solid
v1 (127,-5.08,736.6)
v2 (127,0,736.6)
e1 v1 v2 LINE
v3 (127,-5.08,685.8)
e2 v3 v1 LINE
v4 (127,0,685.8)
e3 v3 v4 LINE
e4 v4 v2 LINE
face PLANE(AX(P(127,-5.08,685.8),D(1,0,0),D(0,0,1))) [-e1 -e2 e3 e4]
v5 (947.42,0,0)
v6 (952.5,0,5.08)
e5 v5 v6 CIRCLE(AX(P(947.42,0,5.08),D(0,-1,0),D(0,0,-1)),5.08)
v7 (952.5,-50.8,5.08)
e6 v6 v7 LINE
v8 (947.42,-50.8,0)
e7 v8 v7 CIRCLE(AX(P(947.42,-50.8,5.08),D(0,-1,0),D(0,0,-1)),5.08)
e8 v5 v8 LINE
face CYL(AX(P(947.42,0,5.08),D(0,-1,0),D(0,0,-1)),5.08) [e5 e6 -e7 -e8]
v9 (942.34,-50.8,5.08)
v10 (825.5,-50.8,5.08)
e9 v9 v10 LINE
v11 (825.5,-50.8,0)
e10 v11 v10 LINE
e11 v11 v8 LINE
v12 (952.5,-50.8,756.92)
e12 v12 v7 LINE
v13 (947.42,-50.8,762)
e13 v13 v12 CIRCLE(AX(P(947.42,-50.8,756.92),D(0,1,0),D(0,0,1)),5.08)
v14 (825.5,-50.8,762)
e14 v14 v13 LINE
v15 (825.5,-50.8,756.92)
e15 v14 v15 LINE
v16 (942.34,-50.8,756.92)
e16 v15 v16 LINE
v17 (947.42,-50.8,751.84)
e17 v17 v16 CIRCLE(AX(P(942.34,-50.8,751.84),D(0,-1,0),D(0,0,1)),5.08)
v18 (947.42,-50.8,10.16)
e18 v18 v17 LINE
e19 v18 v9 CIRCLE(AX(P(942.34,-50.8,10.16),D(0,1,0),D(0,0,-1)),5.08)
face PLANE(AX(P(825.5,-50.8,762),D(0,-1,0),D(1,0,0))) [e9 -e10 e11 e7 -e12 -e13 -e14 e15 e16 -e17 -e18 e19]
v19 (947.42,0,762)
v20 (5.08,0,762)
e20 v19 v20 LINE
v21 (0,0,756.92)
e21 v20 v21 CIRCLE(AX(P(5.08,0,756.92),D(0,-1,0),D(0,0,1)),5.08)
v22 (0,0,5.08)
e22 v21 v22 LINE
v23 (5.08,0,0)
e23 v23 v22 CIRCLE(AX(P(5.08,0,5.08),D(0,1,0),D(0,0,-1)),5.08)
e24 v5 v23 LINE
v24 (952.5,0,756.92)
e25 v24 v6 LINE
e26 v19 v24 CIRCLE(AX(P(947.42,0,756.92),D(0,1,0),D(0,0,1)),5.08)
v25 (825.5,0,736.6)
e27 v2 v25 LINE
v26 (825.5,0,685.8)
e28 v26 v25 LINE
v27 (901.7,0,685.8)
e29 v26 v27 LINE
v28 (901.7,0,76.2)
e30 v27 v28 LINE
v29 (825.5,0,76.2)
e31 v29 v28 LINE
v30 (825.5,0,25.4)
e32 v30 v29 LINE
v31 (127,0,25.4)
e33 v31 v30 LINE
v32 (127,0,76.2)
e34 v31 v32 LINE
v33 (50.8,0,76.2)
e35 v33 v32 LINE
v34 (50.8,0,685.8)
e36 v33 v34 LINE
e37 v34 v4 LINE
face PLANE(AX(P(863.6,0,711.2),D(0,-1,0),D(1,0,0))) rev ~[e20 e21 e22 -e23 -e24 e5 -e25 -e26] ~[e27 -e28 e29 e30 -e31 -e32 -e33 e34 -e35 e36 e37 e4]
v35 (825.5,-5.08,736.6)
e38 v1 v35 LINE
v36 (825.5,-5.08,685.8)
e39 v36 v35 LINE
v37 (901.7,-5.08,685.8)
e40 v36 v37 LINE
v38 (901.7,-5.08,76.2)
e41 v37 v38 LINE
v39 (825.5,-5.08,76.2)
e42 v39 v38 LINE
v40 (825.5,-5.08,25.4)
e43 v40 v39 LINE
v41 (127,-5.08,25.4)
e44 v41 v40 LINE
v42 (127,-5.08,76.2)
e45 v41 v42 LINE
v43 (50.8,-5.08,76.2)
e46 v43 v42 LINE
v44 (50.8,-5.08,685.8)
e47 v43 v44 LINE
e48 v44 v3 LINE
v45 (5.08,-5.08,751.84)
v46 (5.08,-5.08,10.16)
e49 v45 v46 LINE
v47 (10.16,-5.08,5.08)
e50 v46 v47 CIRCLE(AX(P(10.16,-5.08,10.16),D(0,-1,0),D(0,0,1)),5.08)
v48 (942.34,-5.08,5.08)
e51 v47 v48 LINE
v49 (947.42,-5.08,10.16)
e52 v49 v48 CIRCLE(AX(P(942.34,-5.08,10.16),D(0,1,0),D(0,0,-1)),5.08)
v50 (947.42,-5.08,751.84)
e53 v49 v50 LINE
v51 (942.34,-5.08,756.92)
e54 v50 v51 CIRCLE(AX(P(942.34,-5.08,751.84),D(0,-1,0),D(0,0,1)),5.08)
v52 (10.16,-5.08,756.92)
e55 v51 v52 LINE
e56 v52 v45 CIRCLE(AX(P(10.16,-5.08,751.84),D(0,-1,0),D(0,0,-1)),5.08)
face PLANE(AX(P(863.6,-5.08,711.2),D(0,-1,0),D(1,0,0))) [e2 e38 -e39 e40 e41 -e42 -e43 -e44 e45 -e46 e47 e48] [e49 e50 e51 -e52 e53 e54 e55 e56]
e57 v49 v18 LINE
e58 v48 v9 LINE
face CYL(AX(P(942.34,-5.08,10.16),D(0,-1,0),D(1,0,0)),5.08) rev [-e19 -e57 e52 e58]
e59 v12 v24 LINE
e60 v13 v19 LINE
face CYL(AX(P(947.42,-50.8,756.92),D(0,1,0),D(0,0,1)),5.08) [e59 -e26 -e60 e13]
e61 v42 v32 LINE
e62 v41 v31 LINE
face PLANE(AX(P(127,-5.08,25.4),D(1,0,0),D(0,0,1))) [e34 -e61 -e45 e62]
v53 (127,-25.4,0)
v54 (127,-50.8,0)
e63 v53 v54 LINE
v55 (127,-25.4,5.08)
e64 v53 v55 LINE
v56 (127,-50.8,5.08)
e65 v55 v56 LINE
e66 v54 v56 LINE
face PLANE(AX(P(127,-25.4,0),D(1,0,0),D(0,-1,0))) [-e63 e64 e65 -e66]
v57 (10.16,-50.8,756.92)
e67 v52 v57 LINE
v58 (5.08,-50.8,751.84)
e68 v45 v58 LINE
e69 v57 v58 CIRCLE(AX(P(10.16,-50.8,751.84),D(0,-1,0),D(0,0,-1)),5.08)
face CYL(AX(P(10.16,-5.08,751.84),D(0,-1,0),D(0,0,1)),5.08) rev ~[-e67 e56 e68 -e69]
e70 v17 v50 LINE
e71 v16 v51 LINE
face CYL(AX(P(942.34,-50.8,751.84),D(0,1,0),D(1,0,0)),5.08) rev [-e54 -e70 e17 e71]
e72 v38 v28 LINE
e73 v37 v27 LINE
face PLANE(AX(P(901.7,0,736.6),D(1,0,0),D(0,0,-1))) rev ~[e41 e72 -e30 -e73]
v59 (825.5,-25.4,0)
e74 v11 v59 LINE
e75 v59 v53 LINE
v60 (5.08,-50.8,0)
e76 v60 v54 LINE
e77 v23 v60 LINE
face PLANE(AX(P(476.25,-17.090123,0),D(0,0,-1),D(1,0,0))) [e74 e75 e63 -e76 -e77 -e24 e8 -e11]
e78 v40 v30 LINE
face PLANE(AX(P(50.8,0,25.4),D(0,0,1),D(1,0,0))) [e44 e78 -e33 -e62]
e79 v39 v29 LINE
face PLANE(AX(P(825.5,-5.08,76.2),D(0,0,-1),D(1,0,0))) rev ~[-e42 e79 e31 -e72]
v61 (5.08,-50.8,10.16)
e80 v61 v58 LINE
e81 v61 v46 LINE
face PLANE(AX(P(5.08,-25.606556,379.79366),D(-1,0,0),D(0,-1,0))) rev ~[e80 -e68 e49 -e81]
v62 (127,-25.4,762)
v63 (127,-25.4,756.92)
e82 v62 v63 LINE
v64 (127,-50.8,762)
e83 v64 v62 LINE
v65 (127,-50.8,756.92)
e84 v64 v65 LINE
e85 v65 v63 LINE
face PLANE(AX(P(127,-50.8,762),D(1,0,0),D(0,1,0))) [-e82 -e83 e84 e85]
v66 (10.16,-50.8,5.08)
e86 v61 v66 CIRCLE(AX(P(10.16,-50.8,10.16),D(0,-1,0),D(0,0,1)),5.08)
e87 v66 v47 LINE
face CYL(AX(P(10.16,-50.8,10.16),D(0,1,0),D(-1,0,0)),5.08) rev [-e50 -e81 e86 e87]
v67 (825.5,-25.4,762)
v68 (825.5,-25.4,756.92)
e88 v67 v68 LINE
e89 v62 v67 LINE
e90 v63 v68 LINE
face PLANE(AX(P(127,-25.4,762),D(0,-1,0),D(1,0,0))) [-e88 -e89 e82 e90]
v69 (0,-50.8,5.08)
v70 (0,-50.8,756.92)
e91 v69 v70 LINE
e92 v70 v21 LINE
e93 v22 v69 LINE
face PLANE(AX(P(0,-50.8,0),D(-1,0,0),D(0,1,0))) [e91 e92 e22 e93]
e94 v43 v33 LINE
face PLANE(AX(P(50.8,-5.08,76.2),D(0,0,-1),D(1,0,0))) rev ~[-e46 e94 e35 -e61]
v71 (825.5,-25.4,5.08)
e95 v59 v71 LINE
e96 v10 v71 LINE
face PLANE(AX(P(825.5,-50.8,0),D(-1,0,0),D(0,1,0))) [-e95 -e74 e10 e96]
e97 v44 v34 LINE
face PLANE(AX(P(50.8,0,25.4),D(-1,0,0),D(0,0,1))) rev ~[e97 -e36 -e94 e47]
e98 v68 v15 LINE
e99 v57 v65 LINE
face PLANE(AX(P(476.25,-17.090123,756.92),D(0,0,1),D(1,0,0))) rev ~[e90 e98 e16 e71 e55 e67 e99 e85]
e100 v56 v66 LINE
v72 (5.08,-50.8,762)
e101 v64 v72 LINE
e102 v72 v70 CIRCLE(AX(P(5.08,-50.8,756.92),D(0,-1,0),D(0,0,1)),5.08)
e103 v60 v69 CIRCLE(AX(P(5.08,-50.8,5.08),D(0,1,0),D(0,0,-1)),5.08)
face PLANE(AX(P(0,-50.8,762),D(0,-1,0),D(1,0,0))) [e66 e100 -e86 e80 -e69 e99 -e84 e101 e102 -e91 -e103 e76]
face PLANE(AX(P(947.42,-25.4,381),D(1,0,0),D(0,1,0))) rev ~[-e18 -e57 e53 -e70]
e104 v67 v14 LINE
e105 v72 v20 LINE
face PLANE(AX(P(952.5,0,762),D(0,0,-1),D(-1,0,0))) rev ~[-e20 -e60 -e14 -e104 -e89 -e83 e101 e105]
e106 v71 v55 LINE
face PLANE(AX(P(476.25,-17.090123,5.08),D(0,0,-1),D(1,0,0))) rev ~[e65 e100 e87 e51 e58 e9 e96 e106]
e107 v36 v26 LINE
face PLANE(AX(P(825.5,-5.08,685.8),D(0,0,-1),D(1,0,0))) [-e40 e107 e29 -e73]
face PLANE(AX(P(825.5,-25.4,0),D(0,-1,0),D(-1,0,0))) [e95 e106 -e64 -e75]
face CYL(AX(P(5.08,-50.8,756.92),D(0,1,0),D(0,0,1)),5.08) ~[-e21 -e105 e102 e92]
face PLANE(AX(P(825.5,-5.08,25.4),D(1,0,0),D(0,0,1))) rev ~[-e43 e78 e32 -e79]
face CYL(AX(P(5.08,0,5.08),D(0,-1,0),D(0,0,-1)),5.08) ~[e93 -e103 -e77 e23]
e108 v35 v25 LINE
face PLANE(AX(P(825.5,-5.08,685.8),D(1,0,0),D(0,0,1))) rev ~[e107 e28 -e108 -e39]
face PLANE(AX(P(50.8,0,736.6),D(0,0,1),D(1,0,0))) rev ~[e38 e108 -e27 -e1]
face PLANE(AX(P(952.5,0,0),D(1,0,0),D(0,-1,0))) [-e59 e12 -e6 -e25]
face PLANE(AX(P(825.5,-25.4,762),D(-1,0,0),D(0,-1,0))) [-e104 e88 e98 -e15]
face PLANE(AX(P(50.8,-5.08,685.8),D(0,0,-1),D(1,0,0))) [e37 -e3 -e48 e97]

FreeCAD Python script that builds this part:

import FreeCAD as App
import Part
import Sketcher
from FreeCAD import Vector
Q = App.Units.Quantity


def edges_at(feature, points):
    """Names of the edges that pass closest to the given points."""
    edges = feature.Shape.Edges
    near = lambda p: min(range(len(edges)), key=lambda i: edges[i].distToShape(Part.Vertex(*p))[0])
    return sorted({f"Edge{near(p) + 1}" for p in points})

doc = App.newDocument("Part")
body = doc.addObject("PartDesign::Body", "Body")

# Sketch on XZ plane
sketch1 = doc.addObject("Sketcher::SketchObject", "Sketch")
body.addObject(sketch1)
sketch1.AttachmentSupport = (doc.XZ_Plane, [""])
sketch1.MapMode = "FlatFace"
sketch1.addGeometry(Part.LineSegment(Vector(0, 0, 0), Vector(952, 0, 0)), False)
sketch1.addGeometry(Part.LineSegment(Vector(952, 0, 0), Vector(952, 762, 0)), False)
sketch1.addGeometry(Part.LineSegment(Vector(952, 762, 0), Vector(0, 762, 0)), False)
sketch1.addGeometry(Part.LineSegment(Vector(0, 762, 0), Vector(0, 0, 0)), False)
sketch1.addGeometry(Part.LineSegment(Vector(902, 25, 0), Vector(51, 25, 0)), False)
sketch1.addGeometry(Part.LineSegment(Vector(51, 25, 0), Vector(51, 737, 0)), False)
sketch1.addGeometry(Part.LineSegment(Vector(51, 737, 0), Vector(902, 737, 0)), False)
sketch1.addGeometry(Part.LineSegment(Vector(902, 737, 0), Vector(902, 25, 0)), False)
sketch1.addConstraint(Sketcher.Constraint("Coincident", 0, 2, 1, 1))
sketch1.addConstraint(Sketcher.Constraint("Coincident", 1, 2, 2, 1))
sketch1.addConstraint(Sketcher.Constraint("Coincident", 2, 2, 3, 1))
sketch1.addConstraint(Sketcher.Constraint("Coincident", 3, 2, 0, 1))
sketch1.addConstraint(Sketcher.Constraint("Coincident", 4, 2, 5, 1))
sketch1.addConstraint(Sketcher.Constraint("Coincident", 5, 2, 6, 1))
sketch1.addConstraint(Sketcher.Constraint("Coincident", 6, 2, 7, 1))
sketch1.addConstraint(Sketcher.Constraint("Coincident", 7, 2, 4, 1))
sketch1.addConstraint(Sketcher.Constraint("Horizontal", 0))
sketch1.addConstraint(Sketcher.Constraint("Vertical", 1))
sketch1.addConstraint(Sketcher.Constraint("Horizontal", 2))
sketch1.addConstraint(Sketcher.Constraint("Vertical", 3))
sketch1.addConstraint(Sketcher.Constraint("Horizontal", 4))
sketch1.addConstraint(Sketcher.Constraint("Vertical", 5))
sketch1.addConstraint(Sketcher.Constraint("Horizontal", 6))
sketch1.addConstraint(Sketcher.Constraint("Vertical", 7))
sketch1.addConstraint(Sketcher.Constraint("Coincident", 3, 2, -1, 1))
sketch1.addConstraint(Sketcher.Constraint("DistanceY", 1, 1, 1, 2, Q("30 in")))
sketch1.addConstraint(Sketcher.Constraint("DistanceY", 5, 1, 5, 2, Q("28 in")))
sketch1.addConstraint(Sketcher.Constraint("DistanceX", 0, 1, 0, 2, Q("37.5 in")))
sketch1.addConstraint(Sketcher.Constraint("DistanceX", 4, 2, 4, 1, Q("33.5 in")))
sketch1.addConstraint(Sketcher.Constraint("DistanceX", -1, 1, 4, 2, Q("2 in")))
sketch1.addConstraint(Sketcher.Constraint("DistanceY", -1, 1, 4, 2, Q("1 in")))
pad1 = doc.addObject("PartDesign::Pad", "Pad")
body.addObject(pad1)
pad1.Profile = sketch1
pad1.Length = Q("0.2 in")

# Sketch on XY plane
sketch2 = doc.addObject("Sketcher::SketchObject", "Sketch001")
body.addObject(sketch2)
sketch2.AttachmentSupport = (doc.XY_Plane, [""])
sketch2.MapMode = "FlatFace"
sketch2.addGeometry(Part.LineSegment(Vector(0, -51, 0), Vector(0, 0, 0)), False)
sketch2.addGeometry(Part.LineSegment(Vector(0, 0, 0), Vector(952, 0, 0)), False)
sketch2.addGeometry(Part.LineSegment(Vector(952, 0, 0), Vector(952, -51, 0)), False)
sketch2.addGeometry(Part.LineSegment(Vector(952, -51, 0), Vector(826, -51, 0)), False)
sketch2.addGeometry(Part.LineSegment(Vector(826, -51, 0), Vector(826, -25, 0)), False)
sketch2.addGeometry(Part.LineSegment(Vector(826, -25, 0), Vector(127, -25, 0)), False)
sketch2.addGeometry(Part.LineSegment(Vector(127, -25, 0), Vector(127, -51, 0)), False)
sketch2.addGeometry(Part.LineSegment(Vector(127, -51, 0), Vector(0, -51, 0)), False)
sketch2.addConstraint(Sketcher.Constraint("Coincident", 0, 2, 1, 1))
sketch2.addConstraint(Sketcher.Constraint("Coincident", 1, 2, 2, 1))
sketch2.addConstraint(Sketcher.Constraint("Coincident", 2, 2, 3, 1))
sketch2.addConstraint(Sketcher.Constraint("Coincident", 3, 2, 4, 1))
sketch2.addConstraint(Sketcher.Constraint("Coincident", 4, 2, 5, 1))
sketch2.addConstraint(Sketcher.Constraint("Coincident", 5, 2, 6, 1))
sketch2.addConstraint(Sketcher.Constraint("Coincident", 6, 2, 7, 1))
sketch2.addConstraint(Sketcher.Constraint("Coincident", 7, 2, 0, 1))
sketch2.addConstraint(Sketcher.Constraint("Vertical", 0))
sketch2.addConstraint(Sketcher.Constraint("Horizontal", 1))
sketch2.addConstraint(Sketcher.Constraint("Vertical", 2))
sketch2.addConstraint(Sketcher.Constraint("Horizontal", 3))
sketch2.addConstraint(Sketcher.Constraint("Vertical", 4))
sketch2.addConstraint(Sketcher.Constraint("Horizontal", 5))
sketch2.addConstraint(Sketcher.Constraint("Vertical", 6))
sketch2.addConstraint(Sketcher.Constraint("Horizontal", 7))
sketch2.addConstraint(Sketcher.Constraint("Coincident", 0, 2, -1, 1))
sketch2.addConstraint(Sketcher.Constraint("Horizontal", 3, 2, 6, 2))
sketch2.addConstraint(Sketcher.Constraint("Equal", 3, 7))
sketch2.addConstraint(Sketcher.Constraint("DistanceX", 3, 2, 3, 1, Q("5 in")))
sketch2.addConstraint(Sketcher.Constraint("DistanceY", 0, 1, 0, 2, Q("2 in")))
sketch2.addConstraint(Sketcher.Constraint("DistanceY", 4, 1, 4, 2, Q("1 in")))
sketch2.addConstraint(Sketcher.Constraint("DistanceX", 1, 1, 1, 2, Q("37.5 in")))
pad2 = doc.addObject("PartDesign::Pad", "Pad001")
body.addObject(pad2)
pad2.Profile = sketch2
pad2.Length = Q("0.2 in")

# Sketch on XY plane
sketch3 = doc.addObject("Sketcher::SketchObject", "Sketch002")
body.addObject(sketch3)
sketch3.AttachmentSupport = (doc.XY_Plane, [""])
sketch3.MapMode = "FlatFace"
sketch3.AttachmentOffset = App.Placement(Vector(0, 0, 30 * 25.4), App.Rotation())
sketch3.addGeometry(Part.LineSegment(Vector(952, 0, 0), Vector(0, 0, 0)), False)
sketch3.addGeometry(Part.LineSegment(Vector(0, 0, 0), Vector(0, -51, 0)), False)
sketch3.addGeometry(Part.LineSegment(Vector(0, -51, 0), Vector(127, -51, 0)), False)
sketch3.addGeometry(Part.LineSegment(Vector(127, -51, 0), Vector(127, -25, 0)), False)
sketch3.addGeometry(Part.LineSegment(Vector(127, -25, 0), Vector(826, -25, 0)), False)
sketch3.addGeometry(Part.LineSegment(Vector(826, -25, 0), Vector(826, -51, 0)), False)
sketch3.addGeometry(Part.LineSegment(Vector(826, -51, 0), Vector(952, -51, 0)), False)
sketch3.addGeometry(Part.LineSegment(Vector(952, -51, 0), Vector(952, 0, 0)), False)
sketch3.addConstraint(Sketcher.Constraint("Coincident", 0, 2, 1, 1))
sketch3.addConstraint(Sketcher.Constraint("Coincident", 1, 2, 2, 1))
sketch3.addConstraint(Sketcher.Constraint("Coincident", 2, 2, 3, 1))
sketch3.addConstraint(Sketcher.Constraint("Coincident", 3, 2, 4, 1))
sketch3.addConstraint(Sketcher.Constraint("Coincident", 4, 2, 5, 1))
sketch3.addConstraint(Sketcher.Constraint("Coincident", 5, 2, 6, 1))
sketch3.addConstraint(Sketcher.Constraint("Coincident", 6, 2, 7, 1))
sketch3.addConstraint(Sketcher.Constraint("Coincident", 7, 2, 0, 1))
sketch3.addConstraint(Sketcher.Constraint("Horizontal", 0))
sketch3.addConstraint(Sketcher.Constraint("Vertical", 1))
sketch3.addConstraint(Sketcher.Constraint("Horizontal", 2))
sketch3.addConstraint(Sketcher.Constraint("Vertical", 3))
sketch3.addConstraint(Sketcher.Constraint("Horizontal", 4))
sketch3.addConstraint(Sketcher.Constraint("Vertical", 5))
sketch3.addConstraint(Sketcher.Constraint("Horizontal", 6))
sketch3.addConstraint(Sketcher.Constraint("Vertical", 7))
sketch3.addConstraint(Sketcher.Constraint("Coincident", 0, 2, -1, 1))
sketch3.addConstraint(Sketcher.Constraint("Horizontal", 2, 2, 5, 2))
sketch3.addConstraint(Sketcher.Constraint("Equal", 2, 6))
sketch3.addConstraint(Sketcher.Constraint("DistanceX", 2, 1, 2, 2, Q("5 in")))
sketch3.addConstraint(Sketcher.Constraint("DistanceY", 1, 2, 1, 1, Q("2 in")))
sketch3.addConstraint(Sketcher.Constraint("DistanceY", 3, 1, 3, 2, Q("1 in")))
sketch3.addConstraint(Sketcher.Constraint("DistanceX", 0, 2, 0, 1, Q("37.5 in")))
pad3 = doc.addObject("PartDesign::Pad", "Pad002")
body.addObject(pad3)
pad3.Profile = sketch3
pad3.Length = Q("0.2 in")
pad3.Reversed = True

# Sketch on YZ plane
sketch4 = doc.addObject("Sketcher::SketchObject", "Sketch003")
body.addObject(sketch4)
sketch4.AttachmentSupport = (doc.YZ_Plane, [""])
sketch4.MapMode = "FlatFace"
sketch4.addGeometry(Part.LineSegment(Vector(0, 757, 0), Vector(0, 0, 0)), False)
sketch4.addGeometry(Part.LineSegment(Vector(0, 0, 0), Vector(-51, 0, 0)), False)
sketch4.addGeometry(Part.LineSegment(Vector(-51, 0, 0), Vector(-51, 762, 0)), False)
sketch4.addGeometry(Part.LineSegment(Vector(-51, 762, 0), Vector(0, 757, 0)), False)
sketch4.addConstraint(Sketcher.Constraint("Coincident", 0, 2, 1, 1))
sketch4.addConstraint(Sketcher.Constraint("Coincident", 1, 2, 2, 1))
sketch4.addConstraint(Sketcher.Constraint("Coincident", 2, 2, 3, 1))
sketch4.addConstraint(Sketcher.Constraint("Coincident", 3, 2, 0, 1))
sketch4.addConstraint(Sketcher.Constraint("Vertical", 0))
sketch4.addConstraint(Sketcher.Constraint("Horizontal", 1))
sketch4.addConstraint(Sketcher.Constraint("Vertical", 2))
sketch4.addConstraint(Sketcher.Constraint("PointOnObject", 0, 2, -1))
sketch4.addConstraint(Sketcher.Constraint("DistanceY", 2, 1, 2, 2, Q("30 in")))
sketch4.addConstraint(Sketcher.Constraint("Distance", 3, Q("2 in")))
sketch4.addConstraint(Sketcher.Constraint("DistanceY", 0, 2, 0, 1, Q("29.8 in")))
sketch4.addConstraint(Sketcher.Constraint("DistanceX", 1, 2, -1, 1, Q("2 in")))
pad4 = doc.addObject("PartDesign::Pad", "Pad003")
body.addObject(pad4)
pad4.Profile = sketch4
pad4.Length = Q("0.2 in")

# Sketch on YZ plane
sketch5 = doc.addObject("Sketcher::SketchObject", "Sketch004")
body.addObject(sketch5)
sketch5.AttachmentSupport = (doc.YZ_Plane, [""])
sketch5.MapMode = "FlatFace"
sketch5.AttachmentOffset = App.Placement(Vector(0, 0, 37.5 * 25.4), App.Rotation())
sketch5.addGeometry(Part.LineSegment(Vector(-51, 762, 0), Vector(-51, 0, 0)), False)
sketch5.addGeometry(Part.LineSegment(Vector(-51, 0, 0), Vector(0, 0, 0)), False)
sketch5.addGeometry(Part.LineSegment(Vector(0, 0, 0), Vector(0, 762, 0)), False)
sketch5.addGeometry(Part.LineSegment(Vector(0, 762, 0), Vector(-51, 762, 0)), False)
sketch5.addConstraint(Sketcher.Constraint("Coincident", 0, 2, 1, 1))
sketch5.addConstraint(Sketcher.Constraint("Coincident", 1, 2, 2, 1))
sketch5.addConstraint(Sketcher.Constraint("Coincident", 2, 2, 3, 1))
sketch5.addConstraint(Sketcher.Constraint("Coincident", 3, 2, 0, 1))
sketch5.addConstraint(Sketcher.Constraint("Vertical", 0))
sketch5.addConstraint(Sketcher.Constraint("Horizontal", 1))
sketch5.addConstraint(Sketcher.Constraint("Vertical", 2))
sketch5.addConstraint(Sketcher.Constraint("Horizontal", 3))
sketch5.addConstraint(Sketcher.Constraint("Coincident", 1, 2, -1, 1))
sketch5.addConstraint(Sketcher.Constraint("DistanceX", 1, 1, 1, 2, Q("2 in")))
sketch5.addConstraint(Sketcher.Constraint("DistanceY", 0, 2, 0, 1, Q("30 in")))
pad5 = doc.addObject("PartDesign::Pad", "Pad004")
body.addObject(pad5)
pad5.Profile = sketch5
pad5.Length = Q("0.2 in")
pad5.Reversed = True
doc.recompute()

fillet = doc.addObject("PartDesign::Fillet", "Fillet")
body.addObject(fillet)
fillet.Base = (pad5, edges_at(pad5, [
    (0, -25.4, 0),
    (5.08, -27.94, 5.08),
    (5.08, -27.94, 756.92),
    (0, -25.4, 762),
    (952.5, -25.4, 762),
    (947.42, -27.94, 756.92),
    (952.5, -25.4, 0),
    (947.42, -27.94, 5.08),
]))
fillet.Radius = Q("0.2 in")

# Sketch on XZ plane
sketch6 = doc.addObject("Sketcher::SketchObject", "Sketch005")
body.addObject(sketch6)
sketch6.AttachmentSupport = (doc.XZ_Plane, [""])
sketch6.MapMode = "FlatFace"
sketch6.AttachmentOffset = App.Placement(Vector(0, 0, 0.2 * 25.4), App.Rotation())
sketch6.addGeometry(Part.LineSegment(Vector(826, 737, 0), Vector(826, 686, 0)), False)
sketch6.addGeometry(Part.LineSegment(Vector(826, 686, 0), Vector(902, 686, 0)), False)
sketch6.addGeometry(Part.LineSegment(Vector(902, 686, 0), Vector(902, 737, 0)), False)
sketch6.addGeometry(Part.LineSegment(Vector(902, 737, 0), Vector(826, 737, 0)), False)
sketch6.addGeometry(Part.LineSegment(Vector(826, 76, 0), Vector(826, 25, 0)), False)
sketch6.addGeometry(Part.LineSegment(Vector(826, 25, 0), Vector(902, 25, 0)), False)
sketch6.addGeometry(Part.LineSegment(Vector(902, 25, 0), Vector(902, 76, 0)), False)
sketch6.addGeometry(Part.LineSegment(Vector(902, 76, 0), Vector(826, 76, 0)), False)
sketch6.addGeometry(Part.LineSegment(Vector(51, 76, 0), Vector(51, 25, 0)), False)
sketch6.addGeometry(Part.LineSegment(Vector(51, 25, 0), Vector(127, 25, 0)), False)
sketch6.addGeometry(Part.LineSegment(Vector(127, 25, 0), Vector(127, 76, 0)), False)
sketch6.addGeometry(Part.LineSegment(Vector(127, 76, 0), Vector(51, 76, 0)), False)
sketch6.addGeometry(Part.LineSegment(Vector(51, 737, 0), Vector(51, 686, 0)), False)
sketch6.addGeometry(Part.LineSegment(Vector(51, 686, 0), Vector(127, 686, 0)), False)
sketch6.addGeometry(Part.LineSegment(Vector(127, 686, 0), Vector(127, 737, 0)), False)
sketch6.addGeometry(Part.LineSegment(Vector(127, 737, 0), Vector(51, 737, 0)), False)
sketch6.addConstraint(Sketcher.Constraint("Coincident", 0, 2, 1, 1))
sketch6.addConstraint(Sketcher.Constraint("Coincident", 1, 2, 2, 1))
sketch6.addConstraint(Sketcher.Constraint("Coincident", 2, 2, 3, 1))
sketch6.addConstraint(Sketcher.Constraint("Coincident", 3, 2, 0, 1))
sketch6.addConstraint(Sketcher.Constraint("Coincident", 4, 2, 5, 1))
sketch6.addConstraint(Sketcher.Constraint("Coincident", 5, 2, 6, 1))
sketch6.addConstraint(Sketcher.Constraint("Coincident", 6, 2, 7, 1))
sketch6.addConstraint(Sketcher.Constraint("Coincident", 7, 2, 4, 1))
sketch6.addConstraint(Sketcher.Constraint("Coincident", 8, 2, 9, 1))
sketch6.addConstraint(Sketcher.Constraint("Coincident", 9, 2, 10, 1))
sketch6.addConstraint(Sketcher.Constraint("Coincident", 10, 2, 11, 1))
sketch6.addConstraint(Sketcher.Constraint("Coincident", 11, 2, 8, 1))
sketch6.addConstraint(Sketcher.Constraint("Coincident", 12, 2, 13, 1))
sketch6.addConstraint(Sketcher.Constraint("Coincident", 13, 2, 14, 1))
sketch6.addConstraint(Sketcher.Constraint("Coincident", 14, 2, 15, 1))
sketch6.addConstraint(Sketcher.Constraint("Coincident", 15, 2, 12, 1))
sketch6.addConstraint(Sketcher.Constraint("Vertical", 0))
sketch6.addConstraint(Sketcher.Constraint("Horizontal", 1))
sketch6.addConstraint(Sketcher.Constraint("Vertical", 2))
sketch6.addConstraint(Sketcher.Constraint("Horizontal", 3))
sketch6.addConstraint(Sketcher.Constraint("Vertical", 4))
sketch6.addConstraint(Sketcher.Constraint("Horizontal", 5))
sketch6.addConstraint(Sketcher.Constraint("Vertical", 6))
sketch6.addConstraint(Sketcher.Constraint("Horizontal", 7))
sketch6.addConstraint(Sketcher.Constraint("Vertical", 8))
sketch6.addConstraint(Sketcher.Constraint("Horizontal", 9))
sketch6.addConstraint(Sketcher.Constraint("Vertical", 10))
sketch6.addConstraint(Sketcher.Constraint("Horizontal", 11))
sketch6.addConstraint(Sketcher.Constraint("Vertical", 12))
sketch6.addConstraint(Sketcher.Constraint("Horizontal", 13))
sketch6.addConstraint(Sketcher.Constraint("Vertical", 14))
sketch6.addConstraint(Sketcher.Constraint("Horizontal", 15))
sketch6.addConstraint(Sketcher.Constraint("Horizontal", 5, 2, 8, 2))
sketch6.addConstraint(Sketcher.Constraint("Horizontal", 7, 2, 10, 2))
sketch6.addConstraint(Sketcher.Constraint("Horizontal", 1, 2, 12, 2))
sketch6.addConstraint(Sketcher.Constraint("Horizontal", 3, 2, 14, 2))
sketch6.addConstraint(Sketcher.Constraint("Vertical", 3, 2, 4, 2))
sketch6.addConstraint(Sketcher.Constraint("Vertical", 2, 2, 5, 2))
sketch6.addConstraint(Sketcher.Constraint("Vertical", 11, 2, 12, 2))
sketch6.addConstraint(Sketcher.Constraint("Vertical", 10, 2, 13, 2))
sketch6.addConstraint(Sketcher.Constraint("Equal", 7, 9))
sketch6.addConstraint(Sketcher.Constraint("Equal", 2, 4))
sketch6.addConstraint(Sketcher.Constraint("DistanceX", 1, 1, 1, 2, Q("3 in")))
sketch6.addConstraint(Sketcher.Constraint("DistanceY", 0, 2, 0, 1, Q("2 in")))
sketch6.addConstraint(Sketcher.Constraint("DistanceY", -1, 1, 0, 2, Q("27 in")))
sketch6.addConstraint(Sketcher.Constraint("DistanceY", -1, 1, 4, 2, Q("1 in")))
sketch6.addConstraint(Sketcher.Constraint("DistanceX", -1, 1, 8, 2, Q("2 in")))
sketch6.addConstraint(Sketcher.Constraint("DistanceX", -1, 1, 0, 2, Q("32.5 in")))
pad6 = doc.addObject("PartDesign::Pad", "Pad005")
body.addObject(pad6)
pad6.Profile = sketch6
pad6.Length = Q("0.2 in")
pad6.Reversed = True

doc.recompute()
